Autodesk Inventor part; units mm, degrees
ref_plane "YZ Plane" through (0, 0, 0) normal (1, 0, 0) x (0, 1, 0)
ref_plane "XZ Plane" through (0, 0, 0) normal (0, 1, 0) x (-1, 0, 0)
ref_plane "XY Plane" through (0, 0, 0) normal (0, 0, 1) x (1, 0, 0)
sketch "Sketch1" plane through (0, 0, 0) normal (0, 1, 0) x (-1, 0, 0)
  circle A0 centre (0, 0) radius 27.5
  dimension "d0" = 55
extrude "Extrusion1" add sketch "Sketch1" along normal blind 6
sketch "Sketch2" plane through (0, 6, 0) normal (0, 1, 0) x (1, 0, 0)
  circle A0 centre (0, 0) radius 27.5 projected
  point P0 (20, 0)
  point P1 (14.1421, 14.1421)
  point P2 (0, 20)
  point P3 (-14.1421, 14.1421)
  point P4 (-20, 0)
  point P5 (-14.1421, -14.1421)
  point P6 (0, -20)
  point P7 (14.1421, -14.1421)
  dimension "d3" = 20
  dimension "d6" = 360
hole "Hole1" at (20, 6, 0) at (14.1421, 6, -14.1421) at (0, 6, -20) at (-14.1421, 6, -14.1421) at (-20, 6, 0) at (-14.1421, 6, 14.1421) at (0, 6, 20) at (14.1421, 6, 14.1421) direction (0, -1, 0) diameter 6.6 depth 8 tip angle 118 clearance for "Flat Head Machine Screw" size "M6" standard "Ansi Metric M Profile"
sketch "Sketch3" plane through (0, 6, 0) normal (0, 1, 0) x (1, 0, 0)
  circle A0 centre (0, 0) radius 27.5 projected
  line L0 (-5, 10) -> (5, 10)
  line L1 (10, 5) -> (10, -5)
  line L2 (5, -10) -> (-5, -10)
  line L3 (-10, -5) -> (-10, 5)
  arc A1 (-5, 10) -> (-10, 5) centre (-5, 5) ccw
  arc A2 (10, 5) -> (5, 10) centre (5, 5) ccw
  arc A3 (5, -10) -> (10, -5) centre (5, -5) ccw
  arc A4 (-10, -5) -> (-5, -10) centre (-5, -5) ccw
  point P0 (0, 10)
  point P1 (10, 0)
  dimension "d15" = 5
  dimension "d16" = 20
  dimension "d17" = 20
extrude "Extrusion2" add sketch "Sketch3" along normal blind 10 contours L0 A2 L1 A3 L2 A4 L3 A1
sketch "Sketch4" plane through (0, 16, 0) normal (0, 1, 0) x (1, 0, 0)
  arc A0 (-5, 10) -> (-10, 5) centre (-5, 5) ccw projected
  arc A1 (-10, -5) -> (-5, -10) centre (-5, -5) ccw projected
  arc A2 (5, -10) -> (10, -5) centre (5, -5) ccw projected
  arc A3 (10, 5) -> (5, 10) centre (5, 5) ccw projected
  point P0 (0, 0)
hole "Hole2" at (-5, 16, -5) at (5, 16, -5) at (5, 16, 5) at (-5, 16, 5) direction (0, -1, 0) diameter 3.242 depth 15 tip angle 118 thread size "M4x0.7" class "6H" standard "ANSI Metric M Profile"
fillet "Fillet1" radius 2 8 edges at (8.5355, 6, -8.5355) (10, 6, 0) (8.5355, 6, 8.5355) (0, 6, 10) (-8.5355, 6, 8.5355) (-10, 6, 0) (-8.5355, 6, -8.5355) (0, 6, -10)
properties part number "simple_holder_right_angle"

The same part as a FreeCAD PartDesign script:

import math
import FreeCAD as App
import Part
import Sketcher
from FreeCAD import Vector
Q = App.Units.Quantity


def edges_at(feature, points):
    """Names of the edges that pass closest to the given points."""
    edges = feature.Shape.Edges
    near = lambda p: min(range(len(edges)), key=lambda i: edges[i].distToShape(Part.Vertex(*p))[0])
    return sorted({f"Edge{near(p) + 1}" for p in points})

doc = App.newDocument("Part")
body = doc.addObject("PartDesign::Body", "Body")

sketch1 = body.newObject("Sketcher::SketchObject", "Sketch")
sketch1.AttachmentSupport = (doc.getObject("XZ_Plane"), [""])
sketch1.MapMode = "FlatFace"
sketch1.addGeometry(Part.Circle(Vector(0, 0, 0), Vector(0, 0, 1), 27.5), False)
sketch1.addConstraint([
    Sketcher.Constraint("Coincident", 0, 3, -1, 1),
    Sketcher.Constraint("Diameter", 0, Q("55 mm")),
])
pad1 = body.newObject("PartDesign::Pad", "Pad")
pad1.Profile = sketch1
pad1.Length = 6
pad1.Reversed = True

sketch2 = body.newObject("Sketcher::SketchObject", "Sketch001")
sketch2.AttachmentSupport = (doc.getObject("XZ_Plane"), [""])
sketch2.MapMode = "FlatFace"
sketch2.AttachmentOffset = App.Placement(Vector(0, 0, -6), App.Rotation())
sketch2.addGeometry([
    Part.Circle(Vector(20, 0, 0), Vector(0, 0, 1), 3.3),
    Part.Circle(Vector(14.1421, -14.1421, 0), Vector(0, 0, 1), 3.3),
    Part.Circle(Vector(0, -20, 0), Vector(0, 0, 1), 3.3),
    Part.Circle(Vector(-14.1421, -14.1421, 0), Vector(0, 0, 1), 3.3),
    Part.Circle(Vector(-20, 0, 0), Vector(0, 0, 1), 3.3),
    Part.Circle(Vector(-14.1421, 14.1421, 0), Vector(0, 0, 1), 3.3),
    Part.Circle(Vector(0, 20, 0), Vector(0, 0, 1), 3.3),
    Part.Circle(Vector(14.1421, 14.1421, 0), Vector(0, 0, 1), 3.3),
], False)
sketch2.addConstraint([
    Sketcher.Constraint("Equal", 0, 1),
    Sketcher.Constraint("Equal", 1, 2),
    Sketcher.Constraint("Equal", 2, 3),
    Sketcher.Constraint("Equal", 3, 4),
    Sketcher.Constraint("Equal", 4, 5),
    Sketcher.Constraint("Equal", 5, 6),
    Sketcher.Constraint("Equal", 6, 7),
    Sketcher.Constraint("Symmetric", 0, 3, 4, 3, -1, 1),
    Sketcher.Constraint("Symmetric", 1, 3, 5, 3, -1, 1),
    Sketcher.Constraint("Symmetric", 2, 3, 6, 3, -1, 1),
    Sketcher.Constraint("Symmetric", 3, 3, 7, 3, -1, 1),
    Sketcher.Constraint("Symmetric", 1, 3, 3, 3, -2),
    Sketcher.Constraint("PointOnObject", 0, 3, -1),
    Sketcher.Constraint("PointOnObject", 2, 3, -2),
    Sketcher.Constraint("Diameter", 0, Q("6.6 mm")),
    Sketcher.Constraint("DistanceX", -1, 1, 0, 3, Q("20 mm")),
    Sketcher.Constraint("DistanceY", 2, 3, -1, 1, Q("20 mm")),
    Sketcher.Constraint("DistanceX", -1, 1, 1, 3, Q("14.142 mm")),
    Sketcher.Constraint("DistanceY", 1, 3, -1, 1, Q("14.142 mm")),
])
doc.recompute()
hole = body.newObject("PartDesign::Hole", "Hole")
hole.Profile = sketch2
hole.ThreadType = "None"
hole.Diameter = 6.6
hole.DepthType = "Dimension"
hole.Depth = 8
hole.DrillPoint = "Angled"
hole.DrillPointAngle = 118
hole.Reversed = True

sketch3 = body.newObject("Sketcher::SketchObject", "Sketch002")
sketch3.AttachmentSupport = (doc.getObject("XZ_Plane"), [""])
sketch3.MapMode = "FlatFace"
sketch3.AttachmentOffset = App.Placement(Vector(0, 0, -6), App.Rotation())
sketch3.addGeometry([
    Part.LineSegment(Vector(5, -10, 0), Vector(-5, -10, 0)),
    Part.ArcOfCircle(Part.Circle(Vector(-5, -5, 0), Vector(0, 0, 1), 5), math.radians(180), math.radians(270)),
    Part.LineSegment(Vector(-10, -5, 0), Vector(-10, 5, 0)),
    Part.ArcOfCircle(Part.Circle(Vector(-5, 5, 0), Vector(0, 0, 1), 5), math.radians(90), math.radians(180)),
    Part.LineSegment(Vector(-5, 10, 0), Vector(5, 10, 0)),
    Part.ArcOfCircle(Part.Circle(Vector(5, 5, 0), Vector(0, 0, 1), 5), math.radians(0), math.radians(90)),
    Part.LineSegment(Vector(10, 5, 0), Vector(10, -5, 0)),
    Part.ArcOfCircle(Part.Circle(Vector(5, -5, 0), Vector(0, 0, 1), 5), math.radians(-90), math.radians(0)),
], False)
sketch3.addConstraint([
    Sketcher.Constraint("Tangent", 0, 2, 1, 2),
    Sketcher.Constraint("Tangent", 1, 1, 2, 1),
    Sketcher.Constraint("Tangent", 2, 2, 3, 2),
    Sketcher.Constraint("Tangent", 3, 1, 4, 1),
    Sketcher.Constraint("Tangent", 4, 2, 5, 2),
    Sketcher.Constraint("Tangent", 5, 1, 6, 1),
    Sketcher.Constraint("Tangent", 6, 2, 7, 2),
    Sketcher.Constraint("Tangent", 7, 1, 0, 1),
    Sketcher.Constraint("Horizontal", 0),
    Sketcher.Constraint("Vertical", 2),
    Sketcher.Constraint("Horizontal", 4),
    Sketcher.Constraint("Vertical", 6),
    Sketcher.Constraint("Equal", 1, 3),
    Sketcher.Constraint("Equal", 3, 5),
    Sketcher.Constraint("Equal", 5, 7),
    Sketcher.Constraint("Symmetric", 1, 3, 5, 3, -1, 1),
    Sketcher.Constraint("Equal", 4, 2),
    Sketcher.Constraint("Radius", 1, Q("5 mm")),
    Sketcher.Constraint("DistanceX", 1, 3, -1, 1, Q("5 mm")),
])
pad2 = body.newObject("PartDesign::Pad", "Pad001")
pad2.Profile = sketch3
pad2.Length = 10
pad2.Reversed = True

sketch4 = body.newObject("Sketcher::SketchObject", "Sketch003")
sketch4.AttachmentSupport = (doc.getObject("XZ_Plane"), [""])
sketch4.MapMode = "FlatFace"
sketch4.AttachmentOffset = App.Placement(Vector(0, 0, -16), App.Rotation())
sketch4.addGeometry([
    Part.Circle(Vector(-5, -5, 0), Vector(0, 0, 1), 1.621),
    Part.Circle(Vector(5, -5, 0), Vector(0, 0, 1), 1.621),
    Part.Circle(Vector(5, 5, 0), Vector(0, 0, 1), 1.621),
    Part.Circle(Vector(-5, 5, 0), Vector(0, 0, 1), 1.621),
], False)
sketch4.addConstraint([
    Sketcher.Constraint("Equal", 0, 1),
    Sketcher.Constraint("Equal", 1, 2),
    Sketcher.Constraint("Equal", 2, 3),
    Sketcher.Constraint("Symmetric", 0, 3, 2, 3, -1, 1),
    Sketcher.Constraint("Symmetric", 1, 3, 3, 3, -1, 1),
    Sketcher.Constraint("Symmetric", 0, 3, 1, 3, -2),
    Sketcher.Constraint("Diameter", 0, Q("3.242 mm")),
    Sketcher.Constraint("DistanceX", 0, 3, -1, 1, Q("5 mm")),
    Sketcher.Constraint("DistanceY", 0, 3, -1, 1, Q("5 mm")),
])
doc.recompute()
hole2 = body.newObject("PartDesign::Hole", "Hole001")
hole2.Profile = sketch4
hole2.ThreadType = "None"
hole2.Diameter = 3.242
hole2.DepthType = "Dimension"
hole2.Depth = 15
hole2.DrillPoint = "Angled"
hole2.DrillPointAngle = 118
hole2.Reversed = True
doc.recompute()

fillet = body.newObject("PartDesign::Fillet", "Fillet")
fillet.Base = (hole2, edges_at(hole2, [
    (8.536, 6, -8.536),
    (10, 6, 0),
    (8.536, 6, 8.536),
    (0, 6, 10),
    (-8.536, 6, 8.536),
    (-10, 6, 0),
    (-8.536, 6, -8.536),
    (0, 6, -10),
]))
fillet.Radius = 2

doc.recompute()
